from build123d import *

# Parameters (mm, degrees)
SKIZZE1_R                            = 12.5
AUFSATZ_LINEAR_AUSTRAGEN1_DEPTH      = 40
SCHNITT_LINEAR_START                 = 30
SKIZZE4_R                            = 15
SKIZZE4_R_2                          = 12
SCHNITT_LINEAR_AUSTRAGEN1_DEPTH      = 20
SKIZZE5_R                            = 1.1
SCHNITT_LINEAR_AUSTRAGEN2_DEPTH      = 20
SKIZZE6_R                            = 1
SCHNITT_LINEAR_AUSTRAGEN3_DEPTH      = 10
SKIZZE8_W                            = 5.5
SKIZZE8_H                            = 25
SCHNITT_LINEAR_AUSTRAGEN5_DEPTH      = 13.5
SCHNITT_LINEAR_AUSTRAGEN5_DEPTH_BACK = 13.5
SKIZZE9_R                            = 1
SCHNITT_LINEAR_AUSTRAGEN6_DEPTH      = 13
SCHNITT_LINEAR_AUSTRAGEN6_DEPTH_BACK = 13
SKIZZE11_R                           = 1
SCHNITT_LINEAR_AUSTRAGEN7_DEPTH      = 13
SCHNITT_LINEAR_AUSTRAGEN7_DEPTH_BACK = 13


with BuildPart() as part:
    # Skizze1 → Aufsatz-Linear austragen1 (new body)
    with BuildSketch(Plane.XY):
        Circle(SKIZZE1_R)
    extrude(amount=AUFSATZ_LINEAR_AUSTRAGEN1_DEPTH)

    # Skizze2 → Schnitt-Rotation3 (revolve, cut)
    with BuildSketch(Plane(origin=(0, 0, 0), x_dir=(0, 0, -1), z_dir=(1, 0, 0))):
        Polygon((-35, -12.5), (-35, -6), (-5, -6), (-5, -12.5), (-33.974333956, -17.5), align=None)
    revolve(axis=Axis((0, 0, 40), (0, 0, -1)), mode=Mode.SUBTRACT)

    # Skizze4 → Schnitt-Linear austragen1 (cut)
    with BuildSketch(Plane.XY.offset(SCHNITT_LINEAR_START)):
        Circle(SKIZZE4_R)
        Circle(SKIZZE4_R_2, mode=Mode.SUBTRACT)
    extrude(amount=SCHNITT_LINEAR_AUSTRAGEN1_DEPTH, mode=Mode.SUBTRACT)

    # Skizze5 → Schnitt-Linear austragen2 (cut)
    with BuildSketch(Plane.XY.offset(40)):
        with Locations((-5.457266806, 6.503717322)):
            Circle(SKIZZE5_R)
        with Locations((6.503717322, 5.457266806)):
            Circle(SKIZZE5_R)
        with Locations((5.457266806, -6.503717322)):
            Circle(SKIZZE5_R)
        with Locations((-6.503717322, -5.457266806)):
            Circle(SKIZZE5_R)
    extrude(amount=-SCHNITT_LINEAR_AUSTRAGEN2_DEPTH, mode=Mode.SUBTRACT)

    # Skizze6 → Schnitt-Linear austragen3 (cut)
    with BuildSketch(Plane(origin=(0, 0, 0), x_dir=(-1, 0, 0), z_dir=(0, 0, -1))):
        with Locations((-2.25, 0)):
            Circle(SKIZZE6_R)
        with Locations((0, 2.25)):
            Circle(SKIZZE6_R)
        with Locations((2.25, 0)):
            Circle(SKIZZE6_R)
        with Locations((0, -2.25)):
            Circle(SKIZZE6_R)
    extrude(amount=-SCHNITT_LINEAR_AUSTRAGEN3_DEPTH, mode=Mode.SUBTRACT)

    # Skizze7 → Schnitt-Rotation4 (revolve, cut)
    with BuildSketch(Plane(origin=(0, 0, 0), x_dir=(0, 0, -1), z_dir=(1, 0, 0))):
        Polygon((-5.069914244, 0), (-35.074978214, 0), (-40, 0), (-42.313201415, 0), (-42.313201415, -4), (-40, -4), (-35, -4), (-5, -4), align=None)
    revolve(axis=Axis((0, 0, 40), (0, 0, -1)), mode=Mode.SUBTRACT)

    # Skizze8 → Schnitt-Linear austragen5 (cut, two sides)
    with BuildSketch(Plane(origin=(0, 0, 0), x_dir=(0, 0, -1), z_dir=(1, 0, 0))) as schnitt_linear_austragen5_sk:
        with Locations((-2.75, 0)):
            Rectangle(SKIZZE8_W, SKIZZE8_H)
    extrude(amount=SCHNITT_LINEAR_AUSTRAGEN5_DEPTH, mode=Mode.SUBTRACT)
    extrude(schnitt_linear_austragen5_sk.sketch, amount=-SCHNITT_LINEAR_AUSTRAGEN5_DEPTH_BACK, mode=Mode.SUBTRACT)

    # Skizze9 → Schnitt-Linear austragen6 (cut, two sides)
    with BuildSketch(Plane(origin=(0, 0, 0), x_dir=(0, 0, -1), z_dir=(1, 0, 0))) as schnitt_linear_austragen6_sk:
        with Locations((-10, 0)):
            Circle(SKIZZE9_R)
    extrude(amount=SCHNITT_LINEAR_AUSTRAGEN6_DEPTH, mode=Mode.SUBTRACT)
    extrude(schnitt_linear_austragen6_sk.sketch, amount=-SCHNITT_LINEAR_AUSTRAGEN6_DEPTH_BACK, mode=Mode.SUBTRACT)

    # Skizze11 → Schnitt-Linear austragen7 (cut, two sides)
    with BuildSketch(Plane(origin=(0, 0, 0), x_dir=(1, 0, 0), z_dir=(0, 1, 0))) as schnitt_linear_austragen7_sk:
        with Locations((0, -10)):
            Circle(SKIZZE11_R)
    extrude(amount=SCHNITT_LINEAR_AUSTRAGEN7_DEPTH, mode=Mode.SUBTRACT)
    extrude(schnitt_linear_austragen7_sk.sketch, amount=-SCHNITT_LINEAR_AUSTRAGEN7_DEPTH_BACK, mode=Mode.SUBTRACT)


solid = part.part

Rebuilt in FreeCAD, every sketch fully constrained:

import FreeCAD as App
import Part
import Sketcher
from FreeCAD import Vector
Q = App.Units.Quantity


def add_polygon(sketch, points):
    """Adds a closed chain of lines whose ends are joined by coincident constraints."""
    first, n = sketch.GeometryCount, len(points)
    for a, b in zip(points, points[1:] + points[:1]):
        sketch.addGeometry(Part.LineSegment(App.Vector(*a, 0), App.Vector(*b, 0)), False)
    for i in range(n):
        sketch.addConstraint(Sketcher.Constraint("Coincident", first + i, 2, first + (i + 1) % n, 1))

doc = App.newDocument("Part")
body = doc.addObject("PartDesign::Body", "Body")

# Sketch on XY plane
sketch1 = body.newObject("Sketcher::SketchObject", "Sketch")
sketch1.AttachmentSupport = (doc.getObject("XY_Plane"), [""])
sketch1.MapMode = "FlatFace"
sketch1.addGeometry(Part.Circle(Vector(0, 0, 0), Vector(0, 0, 1), 12.5), False)
sketch1.addConstraint([
    Sketcher.Constraint("Coincident", 0, 3, -1, 1),
    Sketcher.Constraint("Diameter", 0, Q("25 mm")),
])
pad1 = body.newObject("PartDesign::Pad", "Pad")
pad1.Profile = sketch1
pad1.Length = 40

# Sketch on YZ plane
sketch2 = body.newObject("Sketcher::SketchObject", "Sketch001")
sketch2.AttachmentSupport = (doc.getObject("YZ_Plane"), [""])
sketch2.MapMode = "FlatFace"
add_polygon(sketch2, [(-6, 35), (-12.5, 35), (-17.5, 33.974334), (-12.5, 5), (-6, 5)])  # lines 0-4
sketch2.addConstraint([
    Sketcher.Constraint("Horizontal", 0),
    Sketcher.Constraint("Horizontal", 3),
    Sketcher.Constraint("Vertical", 4),
    Sketcher.Constraint("Vertical", 0, 2, 2, 2),
    Sketcher.Constraint("DistanceY", 4, 1, 4, 2, Q("30 mm")),
    Sketcher.Constraint("DistanceX", 0, 2, 0, 1, Q("6.5 mm")),
    Sketcher.Constraint("DistanceY", -1, 1, 0, 2, Q("35 mm")),
    Sketcher.Constraint("DistanceX", 3, 2, -1, 1, Q("6 mm")),
    Sketcher.Constraint("DistanceX", 1, 2, 0, 2, Q("5 mm")),
    Sketcher.Constraint("Distance", 1, Q("5.104115 mm")),
])
groove = body.newObject("PartDesign::Groove", "Groove")
groove.Profile = sketch2
groove.ReferenceAxis = (sketch2, ["V_Axis"])
groove.Angle = 360

# Sketch on XY plane
sketch3 = body.newObject("Sketcher::SketchObject", "Sketch002")
sketch3.AttachmentSupport = (doc.getObject("XY_Plane"), [""])
sketch3.MapMode = "FlatFace"
sketch3.AttachmentOffset = App.Placement(Vector(0, 0, 30), App.Rotation())
sketch3.addGeometry([
    Part.Circle(Vector(0, 0, 0), Vector(0, 0, 1), 15),
    Part.Circle(Vector(0, 0, 0), Vector(0, 0, 1), 12),
], False)
sketch3.addConstraint([
    Sketcher.Constraint("Coincident", 0, 3, -1, 1),
    Sketcher.Constraint("Coincident", 1, 3, -1, 1),
    Sketcher.Constraint("Diameter", 0, Q("30 mm")),
    Sketcher.Constraint("Diameter", 1, Q("24 mm")),
])
pocket1 = body.newObject("PartDesign::Pocket", "Pocket")
pocket1.Profile = sketch3
pocket1.Length = 20
pocket1.Reversed = True

# Sketch on XY plane
sketch4 = body.newObject("Sketcher::SketchObject", "Sketch003")
sketch4.AttachmentSupport = (doc.getObject("XY_Plane"), [""])
sketch4.MapMode = "FlatFace"
sketch4.AttachmentOffset = App.Placement(Vector(0, 0, 40), App.Rotation())
sketch4.addGeometry([
    Part.Circle(Vector(-5.457267, 6.503717, 0), Vector(0, 0, 1), 1.1),
    Part.Circle(Vector(6.503717, 5.457267, 0), Vector(0, 0, 1), 1.1),
    Part.Circle(Vector(5.457267, -6.503717, 0), Vector(0, 0, 1), 1.1),
    Part.Circle(Vector(-6.503717, -5.457267, 0), Vector(0, 0, 1), 1.1),
], False)
sketch4.addConstraint([
    Sketcher.Constraint("Equal", 0, 1),
    Sketcher.Constraint("Equal", 1, 2),
    Sketcher.Constraint("Equal", 2, 3),
    Sketcher.Constraint("Symmetric", 0, 3, 2, 3, -1, 1),
    Sketcher.Constraint("Symmetric", 1, 3, 3, 3, -1, 1),
    Sketcher.Constraint("Diameter", 0, Q("2.2 mm")),
    Sketcher.Constraint("DistanceY", 1, 3, 0, 3, Q("1.046451 mm")),
    Sketcher.Constraint("DistanceX", 2, 3, 1, 3, Q("1.046451 mm")),
    Sketcher.Constraint("DistanceX", 0, 3, -1, 1, Q("5.457267 mm")),
    Sketcher.Constraint("DistanceY", -1, 1, 0, 3, Q("6.503717 mm")),
])
pocket2 = body.newObject("PartDesign::Pocket", "Pocket001")
pocket2.Profile = sketch4
pocket2.Length = 20

# Sketch on XY plane
sketch5 = body.newObject("Sketcher::SketchObject", "Sketch004")
sketch5.AttachmentSupport = (doc.getObject("XY_Plane"), [""])
sketch5.MapMode = "FlatFace"
sketch5.addGeometry([
    Part.Circle(Vector(2.25, 0, 0), Vector(0, 0, 1), 1),
    Part.Circle(Vector(0, 2.25, 0), Vector(0, 0, 1), 1),
    Part.Circle(Vector(-2.25, 0, 0), Vector(0, 0, 1), 1),
    Part.Circle(Vector(0, -2.25, 0), Vector(0, 0, 1), 1),
], False)
sketch5.addConstraint([
    Sketcher.Constraint("Equal", 0, 1),
    Sketcher.Constraint("Equal", 1, 2),
    Sketcher.Constraint("Equal", 2, 3),
    Sketcher.Constraint("Symmetric", 0, 3, 2, 3, -1, 1),
    Sketcher.Constraint("Symmetric", 1, 3, 3, 3, -1, 1),
    Sketcher.Constraint("PointOnObject", 0, 3, -1),
    Sketcher.Constraint("PointOnObject", 1, 3, -2),
    Sketcher.Constraint("Diameter", 0, Q("2 mm")),
    Sketcher.Constraint("DistanceX", 2, 3, 0, 3, Q("4.5 mm")),
    Sketcher.Constraint("DistanceY", 3, 3, 1, 3, Q("4.5 mm")),
])
pocket3 = body.newObject("PartDesign::Pocket", "Pocket002")
pocket3.Profile = sketch5
pocket3.Length = 10
pocket3.Reversed = True

# Sketch on YZ plane
sketch6 = body.newObject("Sketcher::SketchObject", "Sketch005")
sketch6.AttachmentSupport = (doc.getObject("YZ_Plane"), [""])
sketch6.MapMode = "FlatFace"
add_polygon(sketch6, [(0, 5.069914), (0, 42.313201), (-4, 42.313201), (-4, 5)])  # lines 0-3
sketch6.addConstraint([
    Sketcher.Constraint("Vertical", 0),
    Sketcher.Constraint("Horizontal", 1),
    Sketcher.Constraint("Vertical", 2),
    Sketcher.Constraint("PointOnObject", 0, 2, -2),
    Sketcher.Constraint("DistanceX", 1, 2, 1, 1, Q("4 mm")),
    Sketcher.Constraint("DistanceY", -1, 1, 2, 2, Q("5 mm")),
    Sketcher.Constraint("DistanceY", 2, 2, 2, 1, Q("37.313201 mm")),
    Sketcher.Constraint("Distance", 3, Q("4.000611 mm")),
])
groove2 = body.newObject("PartDesign::Groove", "Groove001")
groove2.Profile = sketch6
groove2.ReferenceAxis = (sketch6, ["V_Axis"])
groove2.Angle = 360

# Sketch on YZ plane
sketch7 = body.newObject("Sketcher::SketchObject", "Sketch006")
sketch7.AttachmentSupport = (doc.getObject("YZ_Plane"), [""])
sketch7.MapMode = "FlatFace"
add_polygon(sketch7, [(12.5, 5.5), (-12.5, 5.5), (-12.5, 0), (12.5, 0)])  # lines 0-3
sketch7.addConstraint([
    Sketcher.Constraint("Horizontal", 0),
    Sketcher.Constraint("Vertical", 1),
    Sketcher.Constraint("Horizontal", 2),
    Sketcher.Constraint("Vertical", 3),
    Sketcher.Constraint("Symmetric", 1, 2, 2, 2, -1, 1),
    Sketcher.Constraint("DistanceX", 0, 2, 0, 1, Q("25 mm")),
    Sketcher.Constraint("DistanceY", 1, 2, 1, 1, Q("5.5 mm")),
])
pocket4 = body.newObject("PartDesign::Pocket", "Pocket003")
pocket4.Profile = sketch7
pocket4.Type = "ThroughAll"
pocket4.Midplane = True

# Sketch on YZ plane
sketch8 = body.newObject("Sketcher::SketchObject", "Sketch007")
sketch8.AttachmentSupport = (doc.getObject("YZ_Plane"), [""])
sketch8.MapMode = "FlatFace"
sketch8.addGeometry(Part.Circle(Vector(0, 10, 0), Vector(0, 0, 1), 1), False)
sketch8.addConstraint([
    Sketcher.Constraint("PointOnObject", 0, 3, -2),
    Sketcher.Constraint("Diameter", 0, Q("2 mm")),
    Sketcher.Constraint("DistanceY", -1, 1, 0, 3, Q("10 mm")),
])
pocket5 = body.newObject("PartDesign::Pocket", "Pocket004")
pocket5.Profile = sketch8
pocket5.Type = "ThroughAll"
pocket5.Midplane = True

# Sketch on XZ plane
sketch9 = body.newObject("Sketcher::SketchObject", "Sketch008")
sketch9.AttachmentSupport = (doc.getObject("XZ_Plane"), [""])
sketch9.MapMode = "FlatFace"
sketch9.addGeometry(Part.Circle(Vector(0, 10, 0), Vector(0, 0, 1), 1), False)
sketch9.addConstraint([
    Sketcher.Constraint("PointOnObject", 0, 3, -2),
    Sketcher.Constraint("Diameter", 0, Q("2 mm")),
    Sketcher.Constraint("DistanceY", -1, 1, 0, 3, Q("10 mm")),
])
pocket6 = body.newObject("PartDesign::Pocket", "Pocket005")
pocket6.Profile = sketch9
pocket6.Type = "ThroughAll"
pocket6.Midplane = True

doc.recompute()
